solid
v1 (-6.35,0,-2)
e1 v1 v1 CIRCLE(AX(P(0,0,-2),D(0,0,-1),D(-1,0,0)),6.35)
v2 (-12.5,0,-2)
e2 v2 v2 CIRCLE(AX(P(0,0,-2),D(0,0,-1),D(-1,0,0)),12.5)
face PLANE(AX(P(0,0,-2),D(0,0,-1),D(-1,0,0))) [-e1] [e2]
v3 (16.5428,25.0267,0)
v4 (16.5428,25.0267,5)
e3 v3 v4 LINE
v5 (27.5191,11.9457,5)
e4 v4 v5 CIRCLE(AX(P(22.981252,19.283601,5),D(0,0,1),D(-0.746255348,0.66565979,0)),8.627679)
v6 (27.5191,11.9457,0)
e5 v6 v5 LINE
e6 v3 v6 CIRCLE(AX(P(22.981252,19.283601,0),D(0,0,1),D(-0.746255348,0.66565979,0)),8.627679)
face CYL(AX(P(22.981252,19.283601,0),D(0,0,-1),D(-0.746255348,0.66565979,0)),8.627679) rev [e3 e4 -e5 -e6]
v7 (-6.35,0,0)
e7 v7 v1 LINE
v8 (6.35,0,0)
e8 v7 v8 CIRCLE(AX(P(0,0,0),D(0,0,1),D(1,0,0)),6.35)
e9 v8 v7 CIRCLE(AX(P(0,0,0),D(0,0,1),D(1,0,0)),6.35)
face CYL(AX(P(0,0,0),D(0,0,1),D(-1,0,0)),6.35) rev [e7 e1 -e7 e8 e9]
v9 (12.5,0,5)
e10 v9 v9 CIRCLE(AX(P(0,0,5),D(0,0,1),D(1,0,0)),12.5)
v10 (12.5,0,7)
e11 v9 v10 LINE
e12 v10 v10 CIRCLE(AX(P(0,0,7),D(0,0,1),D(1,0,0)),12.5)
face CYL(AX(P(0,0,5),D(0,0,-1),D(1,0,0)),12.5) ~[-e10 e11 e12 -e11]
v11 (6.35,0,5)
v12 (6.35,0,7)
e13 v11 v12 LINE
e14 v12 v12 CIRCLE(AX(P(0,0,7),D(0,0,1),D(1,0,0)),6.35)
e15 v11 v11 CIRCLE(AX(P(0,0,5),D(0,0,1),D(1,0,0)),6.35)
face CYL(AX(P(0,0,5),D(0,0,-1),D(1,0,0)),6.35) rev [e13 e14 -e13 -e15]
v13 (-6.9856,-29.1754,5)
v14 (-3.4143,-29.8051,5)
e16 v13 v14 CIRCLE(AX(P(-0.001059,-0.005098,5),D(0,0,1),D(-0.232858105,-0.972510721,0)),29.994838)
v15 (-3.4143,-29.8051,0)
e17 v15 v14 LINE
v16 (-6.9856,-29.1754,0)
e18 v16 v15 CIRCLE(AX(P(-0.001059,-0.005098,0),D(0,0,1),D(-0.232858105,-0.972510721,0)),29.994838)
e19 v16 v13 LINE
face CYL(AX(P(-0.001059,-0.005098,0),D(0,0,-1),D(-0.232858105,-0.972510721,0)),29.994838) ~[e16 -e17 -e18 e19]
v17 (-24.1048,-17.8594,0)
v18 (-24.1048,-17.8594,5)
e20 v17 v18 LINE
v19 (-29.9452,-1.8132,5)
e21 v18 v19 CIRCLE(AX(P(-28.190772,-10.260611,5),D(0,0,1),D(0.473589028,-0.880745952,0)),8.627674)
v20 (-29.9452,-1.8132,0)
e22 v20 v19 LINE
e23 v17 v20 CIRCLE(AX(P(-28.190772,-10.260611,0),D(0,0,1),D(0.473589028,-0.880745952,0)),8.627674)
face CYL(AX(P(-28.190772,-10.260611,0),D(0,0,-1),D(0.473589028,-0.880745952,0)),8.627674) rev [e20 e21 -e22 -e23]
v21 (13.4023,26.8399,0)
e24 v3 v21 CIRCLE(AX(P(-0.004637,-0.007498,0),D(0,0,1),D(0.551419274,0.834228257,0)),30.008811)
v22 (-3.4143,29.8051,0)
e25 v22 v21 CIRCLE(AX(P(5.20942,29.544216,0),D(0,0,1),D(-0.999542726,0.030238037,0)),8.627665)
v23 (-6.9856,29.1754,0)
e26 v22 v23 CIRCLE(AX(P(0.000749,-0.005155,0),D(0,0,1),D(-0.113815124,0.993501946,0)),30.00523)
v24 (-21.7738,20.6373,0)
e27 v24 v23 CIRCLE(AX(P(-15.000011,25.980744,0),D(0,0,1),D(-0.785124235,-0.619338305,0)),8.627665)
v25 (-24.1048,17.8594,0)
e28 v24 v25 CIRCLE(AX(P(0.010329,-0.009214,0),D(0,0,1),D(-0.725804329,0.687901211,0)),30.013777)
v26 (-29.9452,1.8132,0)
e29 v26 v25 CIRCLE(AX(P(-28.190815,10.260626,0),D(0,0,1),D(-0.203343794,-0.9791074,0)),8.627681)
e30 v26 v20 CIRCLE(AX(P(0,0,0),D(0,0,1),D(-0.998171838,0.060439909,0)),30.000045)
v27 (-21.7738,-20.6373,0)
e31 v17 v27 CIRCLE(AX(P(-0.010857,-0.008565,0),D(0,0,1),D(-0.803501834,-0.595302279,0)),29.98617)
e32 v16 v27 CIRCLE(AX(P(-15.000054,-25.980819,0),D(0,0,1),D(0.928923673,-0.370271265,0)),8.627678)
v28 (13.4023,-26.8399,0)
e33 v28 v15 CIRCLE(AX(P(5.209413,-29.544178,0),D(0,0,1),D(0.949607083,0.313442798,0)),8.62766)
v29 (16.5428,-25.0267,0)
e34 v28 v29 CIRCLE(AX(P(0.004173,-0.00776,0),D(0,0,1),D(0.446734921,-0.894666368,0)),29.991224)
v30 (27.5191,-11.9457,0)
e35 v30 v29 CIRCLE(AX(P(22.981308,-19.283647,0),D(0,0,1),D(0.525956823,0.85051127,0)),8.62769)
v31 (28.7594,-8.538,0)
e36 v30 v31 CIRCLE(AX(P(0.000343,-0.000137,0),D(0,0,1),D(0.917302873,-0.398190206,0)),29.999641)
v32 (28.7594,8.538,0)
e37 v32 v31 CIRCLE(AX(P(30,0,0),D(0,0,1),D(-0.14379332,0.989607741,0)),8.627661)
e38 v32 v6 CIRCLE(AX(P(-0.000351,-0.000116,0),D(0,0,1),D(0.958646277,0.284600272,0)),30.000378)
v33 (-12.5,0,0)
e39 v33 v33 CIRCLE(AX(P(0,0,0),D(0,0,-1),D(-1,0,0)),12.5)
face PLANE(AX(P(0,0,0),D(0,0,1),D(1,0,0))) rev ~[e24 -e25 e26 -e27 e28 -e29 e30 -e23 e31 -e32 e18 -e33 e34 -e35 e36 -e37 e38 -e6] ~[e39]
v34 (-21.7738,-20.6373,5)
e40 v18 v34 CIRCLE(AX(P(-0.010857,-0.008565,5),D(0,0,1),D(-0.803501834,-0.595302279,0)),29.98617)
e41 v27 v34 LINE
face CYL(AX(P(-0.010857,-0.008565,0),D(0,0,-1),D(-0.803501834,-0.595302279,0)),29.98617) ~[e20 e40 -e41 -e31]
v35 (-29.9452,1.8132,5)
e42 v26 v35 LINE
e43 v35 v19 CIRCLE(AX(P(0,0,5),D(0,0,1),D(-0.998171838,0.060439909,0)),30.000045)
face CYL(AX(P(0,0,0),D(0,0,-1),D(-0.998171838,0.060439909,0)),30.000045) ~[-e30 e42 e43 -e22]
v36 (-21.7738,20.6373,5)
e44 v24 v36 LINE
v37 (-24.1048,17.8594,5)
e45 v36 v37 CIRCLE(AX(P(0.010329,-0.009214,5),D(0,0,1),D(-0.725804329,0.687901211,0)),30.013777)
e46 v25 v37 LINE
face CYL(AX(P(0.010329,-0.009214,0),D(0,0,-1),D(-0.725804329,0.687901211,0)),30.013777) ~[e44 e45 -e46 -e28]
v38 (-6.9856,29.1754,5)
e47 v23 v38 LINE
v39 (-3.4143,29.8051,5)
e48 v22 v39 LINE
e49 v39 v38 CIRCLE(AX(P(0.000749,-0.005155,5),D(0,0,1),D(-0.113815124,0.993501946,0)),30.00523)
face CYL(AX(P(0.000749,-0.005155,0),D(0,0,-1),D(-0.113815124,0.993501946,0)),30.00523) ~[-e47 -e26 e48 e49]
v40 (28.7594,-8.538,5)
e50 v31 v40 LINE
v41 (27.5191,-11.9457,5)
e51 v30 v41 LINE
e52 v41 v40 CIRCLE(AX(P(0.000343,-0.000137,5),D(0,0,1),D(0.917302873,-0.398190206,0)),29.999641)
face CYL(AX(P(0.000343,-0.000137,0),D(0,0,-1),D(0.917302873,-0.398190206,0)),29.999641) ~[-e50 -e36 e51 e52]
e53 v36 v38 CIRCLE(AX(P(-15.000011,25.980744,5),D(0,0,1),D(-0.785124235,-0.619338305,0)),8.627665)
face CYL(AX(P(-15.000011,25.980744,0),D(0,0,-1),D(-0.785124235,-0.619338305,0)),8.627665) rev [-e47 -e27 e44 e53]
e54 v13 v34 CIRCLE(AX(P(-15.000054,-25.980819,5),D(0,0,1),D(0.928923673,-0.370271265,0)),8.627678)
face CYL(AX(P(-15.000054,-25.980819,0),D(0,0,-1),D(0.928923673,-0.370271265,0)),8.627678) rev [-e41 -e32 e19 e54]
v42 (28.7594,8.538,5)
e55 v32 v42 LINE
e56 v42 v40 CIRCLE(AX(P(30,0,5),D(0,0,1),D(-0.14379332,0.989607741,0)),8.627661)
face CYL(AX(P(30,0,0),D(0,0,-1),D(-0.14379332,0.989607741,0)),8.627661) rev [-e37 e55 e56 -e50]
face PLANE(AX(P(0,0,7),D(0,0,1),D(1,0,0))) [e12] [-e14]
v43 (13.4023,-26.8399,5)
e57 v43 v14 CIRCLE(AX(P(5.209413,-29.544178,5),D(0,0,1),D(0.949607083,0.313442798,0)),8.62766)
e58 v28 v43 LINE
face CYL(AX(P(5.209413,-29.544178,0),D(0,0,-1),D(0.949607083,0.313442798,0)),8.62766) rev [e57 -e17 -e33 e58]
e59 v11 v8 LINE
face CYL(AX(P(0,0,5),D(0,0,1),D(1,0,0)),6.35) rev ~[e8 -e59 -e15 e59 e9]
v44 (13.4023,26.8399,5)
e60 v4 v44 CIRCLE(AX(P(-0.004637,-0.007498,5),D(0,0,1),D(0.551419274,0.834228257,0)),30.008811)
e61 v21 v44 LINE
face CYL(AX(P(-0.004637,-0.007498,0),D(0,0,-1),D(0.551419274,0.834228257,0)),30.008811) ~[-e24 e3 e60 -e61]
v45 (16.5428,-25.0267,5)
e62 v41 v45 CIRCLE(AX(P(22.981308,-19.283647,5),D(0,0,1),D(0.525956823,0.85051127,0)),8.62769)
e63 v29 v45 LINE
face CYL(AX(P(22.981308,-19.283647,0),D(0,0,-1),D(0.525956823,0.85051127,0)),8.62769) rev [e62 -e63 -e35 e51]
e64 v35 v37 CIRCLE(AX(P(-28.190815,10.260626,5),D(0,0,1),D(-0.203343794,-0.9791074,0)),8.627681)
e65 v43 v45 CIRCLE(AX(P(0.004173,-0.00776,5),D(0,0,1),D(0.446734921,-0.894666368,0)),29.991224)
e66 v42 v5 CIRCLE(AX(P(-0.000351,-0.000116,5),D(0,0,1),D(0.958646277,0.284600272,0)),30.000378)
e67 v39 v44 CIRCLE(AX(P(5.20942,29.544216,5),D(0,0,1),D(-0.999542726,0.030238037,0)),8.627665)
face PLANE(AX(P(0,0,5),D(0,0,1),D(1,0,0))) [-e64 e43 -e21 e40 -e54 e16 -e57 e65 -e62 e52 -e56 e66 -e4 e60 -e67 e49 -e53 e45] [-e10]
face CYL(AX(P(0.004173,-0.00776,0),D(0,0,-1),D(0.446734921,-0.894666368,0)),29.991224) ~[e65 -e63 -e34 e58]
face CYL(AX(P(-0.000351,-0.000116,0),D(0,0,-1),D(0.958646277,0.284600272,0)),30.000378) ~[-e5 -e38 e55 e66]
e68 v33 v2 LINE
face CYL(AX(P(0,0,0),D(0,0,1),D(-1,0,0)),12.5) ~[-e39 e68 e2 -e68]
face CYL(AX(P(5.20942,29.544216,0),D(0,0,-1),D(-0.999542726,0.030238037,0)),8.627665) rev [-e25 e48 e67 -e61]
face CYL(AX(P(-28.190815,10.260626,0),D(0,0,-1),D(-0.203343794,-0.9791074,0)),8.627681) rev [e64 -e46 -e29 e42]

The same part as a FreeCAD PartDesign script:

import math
import FreeCAD as App
import Part
import Sketcher

doc = App.newDocument("Part")
body = doc.addObject("PartDesign::Body", "Body")

sketch1 = doc.addObject("Sketcher::SketchObject", "Sketch")
body.addObject(sketch1)
sketch1.AttachmentSupport = (doc.XY_Plane, [""])
sketch1.MapMode = "FlatFace"
sketch1.addGeometry(Part.ArcOfCircle(Part.Circle(App.Vector(30, 0, 0), App.Vector(0, 0, 1), 8.627661), math.radians(98.267409), math.radians(261.732591)), False)
sketch1.addGeometry(Part.ArcOfCircle(Part.Circle(App.Vector(0, 0, 0), App.Vector(0, 0, 1), 30.000045), math.radians(16.534935), math.radians(23.465067)), False)
sketch1.addGeometry(Part.ArcOfCircle(Part.Circle(App.Vector(22.9813, 19.2836, 0), App.Vector(0, 0, 1), 8.627716), math.radians(138.267246), math.radians(301.732887)), False)
sketch1.addGeometry(Part.ArcOfCircle(Part.Circle(App.Vector(-0.004637, -0.007498, 0), App.Vector(0, 0, 1), 30.008811), math.radians(56.535564), math.radians(63.463574)), False)
sketch1.addGeometry(Part.ArcOfCircle(Part.Circle(App.Vector(5.2094, 29.5442, 0), App.Vector(0, 0, 1), 8.627646), math.radians(178.267111), math.radians(341.733055)), False)
sketch1.addGeometry(Part.ArcOfCircle(Part.Circle(App.Vector(0.000749, -0.005155, 0), App.Vector(0, 0, 1), 30.00523), math.radians(96.535288), math.radians(103.464197)), False)
sketch1.addGeometry(Part.ArcOfCircle(Part.Circle(App.Vector(-15, 25.9808, 0), App.Vector(0, 0, 1), 8.627709), math.radians(-141.731921), math.radians(21.732597)), False)
sketch1.addGeometry(Part.ArcOfCircle(Part.Circle(App.Vector(0.010329, -0.009214, 0), App.Vector(0, 0, 1), 30.013777), math.radians(136.5358), math.radians(143.462624)), False)
sketch1.addGeometry(Part.ArcOfCircle(Part.Circle(App.Vector(-28.1908, 10.2606, 0), App.Vector(0, 0, 1), 8.627658), math.radians(-101.732694), math.radians(61.732348)), False)
sketch1.addGeometry(Part.ArcOfCircle(Part.Circle(App.Vector(0, 0, 0), App.Vector(0, 0, 1), 30.000045), math.radians(176.534936), math.radians(183.465064)), False)
sketch1.addGeometry(Part.ArcOfCircle(Part.Circle(App.Vector(-28.1908, -10.2606, 0), App.Vector(0, 0, 1), 8.627697), math.radians(-61.732348), math.radians(101.732694)), False)
sketch1.addGeometry(Part.ArcOfCircle(Part.Circle(App.Vector(-0.010857, -0.008565, 0), App.Vector(0, 0, 1), 29.98617), math.radians(-143.465816), math.radians(-136.532607)), False)
sketch1.addGeometry(Part.ArcOfCircle(Part.Circle(App.Vector(-15, -25.9808, 0), App.Vector(0, 0, 1), 8.627634), math.radians(-21.732597), math.radians(141.731921)), False)
sketch1.addGeometry(Part.ArcOfCircle(Part.Circle(App.Vector(-0.001059, -0.005098, 0), App.Vector(0, 0, 1), 29.994838), math.radians(-103.465399), math.radians(-96.534086)), False)
sketch1.addGeometry(Part.ArcOfCircle(Part.Circle(App.Vector(5.2094, -29.5442, 0), App.Vector(0, 0, 1), 8.627679), math.radians(18.266945), math.radians(181.732889)), False)
sketch1.addGeometry(Part.ArcOfCircle(Part.Circle(App.Vector(0.004173, -0.00776, 0), App.Vector(0, 0, 1), 29.991224), math.radians(-63.465608), math.radians(-56.533531)), False)
sketch1.addGeometry(Part.ArcOfCircle(Part.Circle(App.Vector(22.9813, -19.2836, 0), App.Vector(0, 0, 1), 8.627654), math.radians(58.267113), math.radians(221.732754)), False)
sketch1.addGeometry(Part.ArcOfCircle(Part.Circle(App.Vector(0, 0, 0), App.Vector(0, 0, 1), 29.999942), math.radians(-23.465067), math.radians(-16.534935)), False)
sketch1.addConstraint(Sketcher.Constraint("Coincident", 0, 1, 1, 1))
sketch1.addConstraint(Sketcher.Constraint("Coincident", 1, 2, 2, 2))
sketch1.addConstraint(Sketcher.Constraint("Coincident", 2, 1, 3, 1))
sketch1.addConstraint(Sketcher.Constraint("Coincident", 3, 2, 4, 2))
sketch1.addConstraint(Sketcher.Constraint("Coincident", 4, 1, 5, 1))
sketch1.addConstraint(Sketcher.Constraint("Coincident", 5, 2, 6, 2))
sketch1.addConstraint(Sketcher.Constraint("Coincident", 6, 1, 7, 1))
sketch1.addConstraint(Sketcher.Constraint("Coincident", 7, 2, 8, 2))
sketch1.addConstraint(Sketcher.Constraint("Coincident", 8, 1, 9, 1))
sketch1.addConstraint(Sketcher.Constraint("Coincident", 9, 2, 10, 2))
sketch1.addConstraint(Sketcher.Constraint("Coincident", 10, 1, 11, 1))
sketch1.addConstraint(Sketcher.Constraint("Coincident", 11, 2, 12, 2))
sketch1.addConstraint(Sketcher.Constraint("Coincident", 12, 1, 13, 1))
sketch1.addConstraint(Sketcher.Constraint("Coincident", 13, 2, 14, 2))
sketch1.addConstraint(Sketcher.Constraint("Coincident", 14, 1, 15, 1))
sketch1.addConstraint(Sketcher.Constraint("Coincident", 15, 2, 16, 2))
sketch1.addConstraint(Sketcher.Constraint("Coincident", 16, 1, 17, 1))
sketch1.addConstraint(Sketcher.Constraint("Coincident", 17, 2, 0, 2))
sketch1.addConstraint(Sketcher.Constraint("Coincident", 1, 3, -1, 1))
sketch1.addConstraint(Sketcher.Constraint("Coincident", 9, 3, -1, 1))
sketch1.addConstraint(Sketcher.Constraint("Coincident", 17, 3, -1, 1))
sketch1.addConstraint(Sketcher.Constraint("Equal", 0, 2))
sketch1.addConstraint(Sketcher.Constraint("Equal", 2, 4))
sketch1.addConstraint(Sketcher.Constraint("Equal", 4, 6))
sketch1.addConstraint(Sketcher.Constraint("Equal", 6, 8))
sketch1.addConstraint(Sketcher.Constraint("Equal", 1, 9))
sketch1.addConstraint(Sketcher.Constraint("Equal", 8, 10))
sketch1.addConstraint(Sketcher.Constraint("Equal", 10, 12))
sketch1.addConstraint(Sketcher.Constraint("Equal", 12, 14))
sketch1.addConstraint(Sketcher.Constraint("Equal", 14, 16))
sketch1.addConstraint(Sketcher.Constraint("Equal", 9, 17))
sketch1.addConstraint(Sketcher.Constraint("Symmetric", 5, 3, 13, 3, -2))
sketch1.addConstraint(Sketcher.Constraint("Symmetric", 8, 3, 10, 3, -1))
sketch1.addConstraint(Sketcher.Constraint("Symmetric", 6, 3, 12, 3, -1))
sketch1.addConstraint(Sketcher.Constraint("Symmetric", 4, 3, 14, 3, -1))
sketch1.addConstraint(Sketcher.Constraint("Symmetric", 2, 3, 16, 3, -1))
sketch1.addConstraint(Sketcher.Constraint("PointOnObject", 0, 3, -1))
sketch1.addConstraint(Sketcher.Constraint("Vertical", 7, 2, 10, 1))
sketch1.addConstraint(Sketcher.Constraint("Vertical", 6, 1, 11, 2))
sketch1.addConstraint(Sketcher.Constraint("Vertical", 5, 2, 12, 1))
sketch1.addConstraint(Sketcher.Constraint("Vertical", 3, 2, 14, 1))
sketch1.addConstraint(Sketcher.Constraint("Vertical", 2, 1, 15, 2))
sketch1.addConstraint(Sketcher.Constraint("Radius", 1, 30.0))
sketch1.addConstraint(Sketcher.Constraint("DistanceX", -1, 1, 0, 3, 30.0))
sketch1.addConstraint(Sketcher.Constraint("DistanceX", 6, 3, -1, 1, 15.0))
sketch1.addConstraint(Sketcher.Constraint("Radius", 0, 8.6277))
sketch1.addConstraint(Sketcher.Constraint("Radius", 3, 30.0088))
sketch1.addConstraint(Sketcher.Constraint("Radius", 5, 30.0052))
sketch1.addConstraint(Sketcher.Constraint("Radius", 7, 30.0138))
sketch1.addConstraint(Sketcher.Constraint("Radius", 11, 29.9862))
sketch1.addConstraint(Sketcher.Constraint("Radius", 13, 29.9948))
sketch1.addConstraint(Sketcher.Constraint("Radius", 15, 29.9912))
sketch1.addConstraint(Sketcher.Constraint("DistanceY", -1, 1, 3, 2, 26.84))
sketch1.addConstraint(Sketcher.Constraint("DistanceY", 10, 1, 8, 3, 28.12))
sketch1.addConstraint(Sketcher.Constraint("DistanceX", 13, 3, -1, 1, 0.001))
sketch1.addConstraint(Sketcher.Constraint("DistanceY", -1, 1, 4, 1, 29.805))
sketch1.addConstraint(Sketcher.Constraint("DistanceX", -1, 1, 16, 1, 27.519))
sketch1.addConstraint(Sketcher.Constraint("DistanceX", 3, 3, 2, 3, 22.986))
sketch1.addConstraint(Sketcher.Constraint("DistanceY", 3, 3, 2, 3, 19.291))
sketch1.addConstraint(Sketcher.Constraint("DistanceX", 4, 3, 2, 3, 17.772))
sketch1.addConstraint(Sketcher.Constraint("DistanceY", 5, 3, 6, 3, 25.986))
sketch1.addConstraint(Sketcher.Constraint("DistanceY", 7, 3, 5, 3, 0.004))
sketch1.addConstraint(Sketcher.Constraint("DistanceX", 3, 3, 7, 3, 0.015))
sketch1.addConstraint(Sketcher.Constraint("DistanceY", 3, 3, 8, 3, 10.268))
pad1 = doc.addObject("PartDesign::Pad", "Pad")
body.addObject(pad1)
pad1.Profile = sketch1
pad1.Length = 5

sketch2 = doc.addObject("Sketcher::SketchObject", "Sketch001")
body.addObject(sketch2)
sketch2.AttachmentSupport = (doc.XY_Plane, [""])
sketch2.MapMode = "FlatFace"
sketch2.AttachmentOffset = App.Placement(App.Vector(0, 0, 5), App.Rotation())
sketch2.addGeometry(Part.Circle(App.Vector(0, 0, 0), App.Vector(0, 0, 1), 6), False)
sketch2.addConstraint(Sketcher.Constraint("Coincident", 0, 3, -1, 1))
sketch2.addConstraint(Sketcher.Constraint("Diameter", 0, 12.7))
pocket1 = doc.addObject("PartDesign::Pocket", "Pocket")
body.addObject(pocket1)
pocket1.Profile = sketch2
pocket1.Type = "ThroughAll"

sketch3 = doc.addObject("Sketcher::SketchObject", "Sketch002")
body.addObject(sketch3)
sketch3.AttachmentSupport = (doc.XY_Plane, [""])
sketch3.MapMode = "FlatFace"
sketch3.AttachmentOffset = App.Placement(App.Vector(0, 0, 5), App.Rotation())
sketch3.addGeometry(Part.Circle(App.Vector(0, 0, 0), App.Vector(0, 0, 1), 12), False)
sketch3.addGeometry(Part.Circle(App.Vector(0, 0, 0), App.Vector(0, 0, 1), 6), False)
sketch3.addConstraint(Sketcher.Constraint("Coincident", 0, 3, -1, 1))
sketch3.addConstraint(Sketcher.Constraint("Coincident", 1, 3, -1, 1))
sketch3.addConstraint(Sketcher.Constraint("Diameter", 0, 25.0))
sketch3.addConstraint(Sketcher.Constraint("Diameter", 1, 12.7))
pad2 = doc.addObject("PartDesign::Pad", "Pad001")
body.addObject(pad2)
pad2.Profile = sketch3
pad2.Length = 2

sketch4 = doc.addObject("Sketcher::SketchObject", "Sketch003")
body.addObject(sketch4)
sketch4.AttachmentSupport = (doc.XY_Plane, [""])
sketch4.MapMode = "FlatFace"
sketch4.addGeometry(Part.Circle(App.Vector(0, 0, 0), App.Vector(0, 0, 1), 12), False)
sketch4.addGeometry(Part.Circle(App.Vector(0, 0, 0), App.Vector(0, 0, 1), 6), False)
sketch4.addConstraint(Sketcher.Constraint("Coincident", 0, 3, -1, 1))
sketch4.addConstraint(Sketcher.Constraint("Coincident", 1, 3, -1, 1))
sketch4.addConstraint(Sketcher.Constraint("Diameter", 0, 25.0))
sketch4.addConstraint(Sketcher.Constraint("Diameter", 1, 12.7))
pad3 = doc.addObject("PartDesign::Pad", "Pad002")
body.addObject(pad3)
pad3.Profile = sketch4
pad3.Length = 2
pad3.Reversed = True

doc.recompute()
